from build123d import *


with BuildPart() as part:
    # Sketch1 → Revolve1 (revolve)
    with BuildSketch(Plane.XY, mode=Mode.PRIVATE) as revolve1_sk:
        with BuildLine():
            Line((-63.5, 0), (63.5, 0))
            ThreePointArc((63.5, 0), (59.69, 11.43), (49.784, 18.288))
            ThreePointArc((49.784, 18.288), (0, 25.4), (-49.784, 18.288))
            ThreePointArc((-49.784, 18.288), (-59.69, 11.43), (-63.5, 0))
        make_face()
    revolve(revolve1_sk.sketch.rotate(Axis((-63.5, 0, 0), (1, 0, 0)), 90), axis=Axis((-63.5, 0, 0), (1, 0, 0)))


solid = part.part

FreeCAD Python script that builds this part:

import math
import FreeCAD as App
import Part
import Sketcher
from FreeCAD import Vector
Q = App.Units.Quantity

doc = App.newDocument("Part")
body = doc.addObject("PartDesign::Body", "Body")

sketch1 = body.newObject("Sketcher::SketchObject", "Sketch")
sketch1.AttachmentSupport = (doc.getObject("XY_Plane"), [""])
sketch1.MapMode = "FlatFace"
sketch1.addGeometry(Part.LineSegment(Vector(-64, 0, 0), Vector(64, 0, 0)), False)
sketch1.addGeometry(Part.ArcOfCircle(Part.Circle(Vector(44, 0, 0), Vector(0, 0, 1), 19), math.radians(0), math.radians(74)), False)
sketch1.addGeometry(Part.ArcOfCircle(Part.Circle(Vector(0, -152, 0), Vector(0, 0, 1), 178), math.radians(74), math.radians(106)), False)
sketch1.addGeometry(Part.ArcOfCircle(Part.Circle(Vector(-44, 0, 0), Vector(0, 0, 1), 19), math.radians(106), math.radians(180)), False)
sketch1.addConstraint(Sketcher.Constraint("Coincident", 0, 2, 1, 1))
sketch1.addConstraint(Sketcher.Constraint("Tangent", 1, 2, 2, 1))
sketch1.addConstraint(Sketcher.Constraint("Tangent", 2, 2, 3, 1))
sketch1.addConstraint(Sketcher.Constraint("Coincident", 3, 2, 0, 1))
sketch1.addConstraint(Sketcher.Constraint("Horizontal", 0))
sketch1.addConstraint(Sketcher.Constraint("Equal", 1, 3))
sketch1.addConstraint(Sketcher.Constraint("Symmetric", 1, 3, 3, 3, -1, 1))
sketch1.addConstraint(Sketcher.Constraint("PointOnObject", 1, 3, -1))
sketch1.addConstraint(Sketcher.Constraint("PointOnObject", 0, 2, -1))
sketch1.addConstraint(Sketcher.Constraint("Radius", 2, Q("7 in")))
sketch1.addConstraint(Sketcher.Constraint("DistanceX", 0, 1, 0, 2, Q("5 in")))
sketch1.addConstraint(Sketcher.Constraint("Radius", 1, Q("0.75 in")))
revolution = body.newObject("PartDesign::Revolution", "Revolution")
revolution.Profile = sketch1
revolution.ReferenceAxis = (sketch1, ["H_Axis"])
revolution.Angle = 360

doc.recompute()
